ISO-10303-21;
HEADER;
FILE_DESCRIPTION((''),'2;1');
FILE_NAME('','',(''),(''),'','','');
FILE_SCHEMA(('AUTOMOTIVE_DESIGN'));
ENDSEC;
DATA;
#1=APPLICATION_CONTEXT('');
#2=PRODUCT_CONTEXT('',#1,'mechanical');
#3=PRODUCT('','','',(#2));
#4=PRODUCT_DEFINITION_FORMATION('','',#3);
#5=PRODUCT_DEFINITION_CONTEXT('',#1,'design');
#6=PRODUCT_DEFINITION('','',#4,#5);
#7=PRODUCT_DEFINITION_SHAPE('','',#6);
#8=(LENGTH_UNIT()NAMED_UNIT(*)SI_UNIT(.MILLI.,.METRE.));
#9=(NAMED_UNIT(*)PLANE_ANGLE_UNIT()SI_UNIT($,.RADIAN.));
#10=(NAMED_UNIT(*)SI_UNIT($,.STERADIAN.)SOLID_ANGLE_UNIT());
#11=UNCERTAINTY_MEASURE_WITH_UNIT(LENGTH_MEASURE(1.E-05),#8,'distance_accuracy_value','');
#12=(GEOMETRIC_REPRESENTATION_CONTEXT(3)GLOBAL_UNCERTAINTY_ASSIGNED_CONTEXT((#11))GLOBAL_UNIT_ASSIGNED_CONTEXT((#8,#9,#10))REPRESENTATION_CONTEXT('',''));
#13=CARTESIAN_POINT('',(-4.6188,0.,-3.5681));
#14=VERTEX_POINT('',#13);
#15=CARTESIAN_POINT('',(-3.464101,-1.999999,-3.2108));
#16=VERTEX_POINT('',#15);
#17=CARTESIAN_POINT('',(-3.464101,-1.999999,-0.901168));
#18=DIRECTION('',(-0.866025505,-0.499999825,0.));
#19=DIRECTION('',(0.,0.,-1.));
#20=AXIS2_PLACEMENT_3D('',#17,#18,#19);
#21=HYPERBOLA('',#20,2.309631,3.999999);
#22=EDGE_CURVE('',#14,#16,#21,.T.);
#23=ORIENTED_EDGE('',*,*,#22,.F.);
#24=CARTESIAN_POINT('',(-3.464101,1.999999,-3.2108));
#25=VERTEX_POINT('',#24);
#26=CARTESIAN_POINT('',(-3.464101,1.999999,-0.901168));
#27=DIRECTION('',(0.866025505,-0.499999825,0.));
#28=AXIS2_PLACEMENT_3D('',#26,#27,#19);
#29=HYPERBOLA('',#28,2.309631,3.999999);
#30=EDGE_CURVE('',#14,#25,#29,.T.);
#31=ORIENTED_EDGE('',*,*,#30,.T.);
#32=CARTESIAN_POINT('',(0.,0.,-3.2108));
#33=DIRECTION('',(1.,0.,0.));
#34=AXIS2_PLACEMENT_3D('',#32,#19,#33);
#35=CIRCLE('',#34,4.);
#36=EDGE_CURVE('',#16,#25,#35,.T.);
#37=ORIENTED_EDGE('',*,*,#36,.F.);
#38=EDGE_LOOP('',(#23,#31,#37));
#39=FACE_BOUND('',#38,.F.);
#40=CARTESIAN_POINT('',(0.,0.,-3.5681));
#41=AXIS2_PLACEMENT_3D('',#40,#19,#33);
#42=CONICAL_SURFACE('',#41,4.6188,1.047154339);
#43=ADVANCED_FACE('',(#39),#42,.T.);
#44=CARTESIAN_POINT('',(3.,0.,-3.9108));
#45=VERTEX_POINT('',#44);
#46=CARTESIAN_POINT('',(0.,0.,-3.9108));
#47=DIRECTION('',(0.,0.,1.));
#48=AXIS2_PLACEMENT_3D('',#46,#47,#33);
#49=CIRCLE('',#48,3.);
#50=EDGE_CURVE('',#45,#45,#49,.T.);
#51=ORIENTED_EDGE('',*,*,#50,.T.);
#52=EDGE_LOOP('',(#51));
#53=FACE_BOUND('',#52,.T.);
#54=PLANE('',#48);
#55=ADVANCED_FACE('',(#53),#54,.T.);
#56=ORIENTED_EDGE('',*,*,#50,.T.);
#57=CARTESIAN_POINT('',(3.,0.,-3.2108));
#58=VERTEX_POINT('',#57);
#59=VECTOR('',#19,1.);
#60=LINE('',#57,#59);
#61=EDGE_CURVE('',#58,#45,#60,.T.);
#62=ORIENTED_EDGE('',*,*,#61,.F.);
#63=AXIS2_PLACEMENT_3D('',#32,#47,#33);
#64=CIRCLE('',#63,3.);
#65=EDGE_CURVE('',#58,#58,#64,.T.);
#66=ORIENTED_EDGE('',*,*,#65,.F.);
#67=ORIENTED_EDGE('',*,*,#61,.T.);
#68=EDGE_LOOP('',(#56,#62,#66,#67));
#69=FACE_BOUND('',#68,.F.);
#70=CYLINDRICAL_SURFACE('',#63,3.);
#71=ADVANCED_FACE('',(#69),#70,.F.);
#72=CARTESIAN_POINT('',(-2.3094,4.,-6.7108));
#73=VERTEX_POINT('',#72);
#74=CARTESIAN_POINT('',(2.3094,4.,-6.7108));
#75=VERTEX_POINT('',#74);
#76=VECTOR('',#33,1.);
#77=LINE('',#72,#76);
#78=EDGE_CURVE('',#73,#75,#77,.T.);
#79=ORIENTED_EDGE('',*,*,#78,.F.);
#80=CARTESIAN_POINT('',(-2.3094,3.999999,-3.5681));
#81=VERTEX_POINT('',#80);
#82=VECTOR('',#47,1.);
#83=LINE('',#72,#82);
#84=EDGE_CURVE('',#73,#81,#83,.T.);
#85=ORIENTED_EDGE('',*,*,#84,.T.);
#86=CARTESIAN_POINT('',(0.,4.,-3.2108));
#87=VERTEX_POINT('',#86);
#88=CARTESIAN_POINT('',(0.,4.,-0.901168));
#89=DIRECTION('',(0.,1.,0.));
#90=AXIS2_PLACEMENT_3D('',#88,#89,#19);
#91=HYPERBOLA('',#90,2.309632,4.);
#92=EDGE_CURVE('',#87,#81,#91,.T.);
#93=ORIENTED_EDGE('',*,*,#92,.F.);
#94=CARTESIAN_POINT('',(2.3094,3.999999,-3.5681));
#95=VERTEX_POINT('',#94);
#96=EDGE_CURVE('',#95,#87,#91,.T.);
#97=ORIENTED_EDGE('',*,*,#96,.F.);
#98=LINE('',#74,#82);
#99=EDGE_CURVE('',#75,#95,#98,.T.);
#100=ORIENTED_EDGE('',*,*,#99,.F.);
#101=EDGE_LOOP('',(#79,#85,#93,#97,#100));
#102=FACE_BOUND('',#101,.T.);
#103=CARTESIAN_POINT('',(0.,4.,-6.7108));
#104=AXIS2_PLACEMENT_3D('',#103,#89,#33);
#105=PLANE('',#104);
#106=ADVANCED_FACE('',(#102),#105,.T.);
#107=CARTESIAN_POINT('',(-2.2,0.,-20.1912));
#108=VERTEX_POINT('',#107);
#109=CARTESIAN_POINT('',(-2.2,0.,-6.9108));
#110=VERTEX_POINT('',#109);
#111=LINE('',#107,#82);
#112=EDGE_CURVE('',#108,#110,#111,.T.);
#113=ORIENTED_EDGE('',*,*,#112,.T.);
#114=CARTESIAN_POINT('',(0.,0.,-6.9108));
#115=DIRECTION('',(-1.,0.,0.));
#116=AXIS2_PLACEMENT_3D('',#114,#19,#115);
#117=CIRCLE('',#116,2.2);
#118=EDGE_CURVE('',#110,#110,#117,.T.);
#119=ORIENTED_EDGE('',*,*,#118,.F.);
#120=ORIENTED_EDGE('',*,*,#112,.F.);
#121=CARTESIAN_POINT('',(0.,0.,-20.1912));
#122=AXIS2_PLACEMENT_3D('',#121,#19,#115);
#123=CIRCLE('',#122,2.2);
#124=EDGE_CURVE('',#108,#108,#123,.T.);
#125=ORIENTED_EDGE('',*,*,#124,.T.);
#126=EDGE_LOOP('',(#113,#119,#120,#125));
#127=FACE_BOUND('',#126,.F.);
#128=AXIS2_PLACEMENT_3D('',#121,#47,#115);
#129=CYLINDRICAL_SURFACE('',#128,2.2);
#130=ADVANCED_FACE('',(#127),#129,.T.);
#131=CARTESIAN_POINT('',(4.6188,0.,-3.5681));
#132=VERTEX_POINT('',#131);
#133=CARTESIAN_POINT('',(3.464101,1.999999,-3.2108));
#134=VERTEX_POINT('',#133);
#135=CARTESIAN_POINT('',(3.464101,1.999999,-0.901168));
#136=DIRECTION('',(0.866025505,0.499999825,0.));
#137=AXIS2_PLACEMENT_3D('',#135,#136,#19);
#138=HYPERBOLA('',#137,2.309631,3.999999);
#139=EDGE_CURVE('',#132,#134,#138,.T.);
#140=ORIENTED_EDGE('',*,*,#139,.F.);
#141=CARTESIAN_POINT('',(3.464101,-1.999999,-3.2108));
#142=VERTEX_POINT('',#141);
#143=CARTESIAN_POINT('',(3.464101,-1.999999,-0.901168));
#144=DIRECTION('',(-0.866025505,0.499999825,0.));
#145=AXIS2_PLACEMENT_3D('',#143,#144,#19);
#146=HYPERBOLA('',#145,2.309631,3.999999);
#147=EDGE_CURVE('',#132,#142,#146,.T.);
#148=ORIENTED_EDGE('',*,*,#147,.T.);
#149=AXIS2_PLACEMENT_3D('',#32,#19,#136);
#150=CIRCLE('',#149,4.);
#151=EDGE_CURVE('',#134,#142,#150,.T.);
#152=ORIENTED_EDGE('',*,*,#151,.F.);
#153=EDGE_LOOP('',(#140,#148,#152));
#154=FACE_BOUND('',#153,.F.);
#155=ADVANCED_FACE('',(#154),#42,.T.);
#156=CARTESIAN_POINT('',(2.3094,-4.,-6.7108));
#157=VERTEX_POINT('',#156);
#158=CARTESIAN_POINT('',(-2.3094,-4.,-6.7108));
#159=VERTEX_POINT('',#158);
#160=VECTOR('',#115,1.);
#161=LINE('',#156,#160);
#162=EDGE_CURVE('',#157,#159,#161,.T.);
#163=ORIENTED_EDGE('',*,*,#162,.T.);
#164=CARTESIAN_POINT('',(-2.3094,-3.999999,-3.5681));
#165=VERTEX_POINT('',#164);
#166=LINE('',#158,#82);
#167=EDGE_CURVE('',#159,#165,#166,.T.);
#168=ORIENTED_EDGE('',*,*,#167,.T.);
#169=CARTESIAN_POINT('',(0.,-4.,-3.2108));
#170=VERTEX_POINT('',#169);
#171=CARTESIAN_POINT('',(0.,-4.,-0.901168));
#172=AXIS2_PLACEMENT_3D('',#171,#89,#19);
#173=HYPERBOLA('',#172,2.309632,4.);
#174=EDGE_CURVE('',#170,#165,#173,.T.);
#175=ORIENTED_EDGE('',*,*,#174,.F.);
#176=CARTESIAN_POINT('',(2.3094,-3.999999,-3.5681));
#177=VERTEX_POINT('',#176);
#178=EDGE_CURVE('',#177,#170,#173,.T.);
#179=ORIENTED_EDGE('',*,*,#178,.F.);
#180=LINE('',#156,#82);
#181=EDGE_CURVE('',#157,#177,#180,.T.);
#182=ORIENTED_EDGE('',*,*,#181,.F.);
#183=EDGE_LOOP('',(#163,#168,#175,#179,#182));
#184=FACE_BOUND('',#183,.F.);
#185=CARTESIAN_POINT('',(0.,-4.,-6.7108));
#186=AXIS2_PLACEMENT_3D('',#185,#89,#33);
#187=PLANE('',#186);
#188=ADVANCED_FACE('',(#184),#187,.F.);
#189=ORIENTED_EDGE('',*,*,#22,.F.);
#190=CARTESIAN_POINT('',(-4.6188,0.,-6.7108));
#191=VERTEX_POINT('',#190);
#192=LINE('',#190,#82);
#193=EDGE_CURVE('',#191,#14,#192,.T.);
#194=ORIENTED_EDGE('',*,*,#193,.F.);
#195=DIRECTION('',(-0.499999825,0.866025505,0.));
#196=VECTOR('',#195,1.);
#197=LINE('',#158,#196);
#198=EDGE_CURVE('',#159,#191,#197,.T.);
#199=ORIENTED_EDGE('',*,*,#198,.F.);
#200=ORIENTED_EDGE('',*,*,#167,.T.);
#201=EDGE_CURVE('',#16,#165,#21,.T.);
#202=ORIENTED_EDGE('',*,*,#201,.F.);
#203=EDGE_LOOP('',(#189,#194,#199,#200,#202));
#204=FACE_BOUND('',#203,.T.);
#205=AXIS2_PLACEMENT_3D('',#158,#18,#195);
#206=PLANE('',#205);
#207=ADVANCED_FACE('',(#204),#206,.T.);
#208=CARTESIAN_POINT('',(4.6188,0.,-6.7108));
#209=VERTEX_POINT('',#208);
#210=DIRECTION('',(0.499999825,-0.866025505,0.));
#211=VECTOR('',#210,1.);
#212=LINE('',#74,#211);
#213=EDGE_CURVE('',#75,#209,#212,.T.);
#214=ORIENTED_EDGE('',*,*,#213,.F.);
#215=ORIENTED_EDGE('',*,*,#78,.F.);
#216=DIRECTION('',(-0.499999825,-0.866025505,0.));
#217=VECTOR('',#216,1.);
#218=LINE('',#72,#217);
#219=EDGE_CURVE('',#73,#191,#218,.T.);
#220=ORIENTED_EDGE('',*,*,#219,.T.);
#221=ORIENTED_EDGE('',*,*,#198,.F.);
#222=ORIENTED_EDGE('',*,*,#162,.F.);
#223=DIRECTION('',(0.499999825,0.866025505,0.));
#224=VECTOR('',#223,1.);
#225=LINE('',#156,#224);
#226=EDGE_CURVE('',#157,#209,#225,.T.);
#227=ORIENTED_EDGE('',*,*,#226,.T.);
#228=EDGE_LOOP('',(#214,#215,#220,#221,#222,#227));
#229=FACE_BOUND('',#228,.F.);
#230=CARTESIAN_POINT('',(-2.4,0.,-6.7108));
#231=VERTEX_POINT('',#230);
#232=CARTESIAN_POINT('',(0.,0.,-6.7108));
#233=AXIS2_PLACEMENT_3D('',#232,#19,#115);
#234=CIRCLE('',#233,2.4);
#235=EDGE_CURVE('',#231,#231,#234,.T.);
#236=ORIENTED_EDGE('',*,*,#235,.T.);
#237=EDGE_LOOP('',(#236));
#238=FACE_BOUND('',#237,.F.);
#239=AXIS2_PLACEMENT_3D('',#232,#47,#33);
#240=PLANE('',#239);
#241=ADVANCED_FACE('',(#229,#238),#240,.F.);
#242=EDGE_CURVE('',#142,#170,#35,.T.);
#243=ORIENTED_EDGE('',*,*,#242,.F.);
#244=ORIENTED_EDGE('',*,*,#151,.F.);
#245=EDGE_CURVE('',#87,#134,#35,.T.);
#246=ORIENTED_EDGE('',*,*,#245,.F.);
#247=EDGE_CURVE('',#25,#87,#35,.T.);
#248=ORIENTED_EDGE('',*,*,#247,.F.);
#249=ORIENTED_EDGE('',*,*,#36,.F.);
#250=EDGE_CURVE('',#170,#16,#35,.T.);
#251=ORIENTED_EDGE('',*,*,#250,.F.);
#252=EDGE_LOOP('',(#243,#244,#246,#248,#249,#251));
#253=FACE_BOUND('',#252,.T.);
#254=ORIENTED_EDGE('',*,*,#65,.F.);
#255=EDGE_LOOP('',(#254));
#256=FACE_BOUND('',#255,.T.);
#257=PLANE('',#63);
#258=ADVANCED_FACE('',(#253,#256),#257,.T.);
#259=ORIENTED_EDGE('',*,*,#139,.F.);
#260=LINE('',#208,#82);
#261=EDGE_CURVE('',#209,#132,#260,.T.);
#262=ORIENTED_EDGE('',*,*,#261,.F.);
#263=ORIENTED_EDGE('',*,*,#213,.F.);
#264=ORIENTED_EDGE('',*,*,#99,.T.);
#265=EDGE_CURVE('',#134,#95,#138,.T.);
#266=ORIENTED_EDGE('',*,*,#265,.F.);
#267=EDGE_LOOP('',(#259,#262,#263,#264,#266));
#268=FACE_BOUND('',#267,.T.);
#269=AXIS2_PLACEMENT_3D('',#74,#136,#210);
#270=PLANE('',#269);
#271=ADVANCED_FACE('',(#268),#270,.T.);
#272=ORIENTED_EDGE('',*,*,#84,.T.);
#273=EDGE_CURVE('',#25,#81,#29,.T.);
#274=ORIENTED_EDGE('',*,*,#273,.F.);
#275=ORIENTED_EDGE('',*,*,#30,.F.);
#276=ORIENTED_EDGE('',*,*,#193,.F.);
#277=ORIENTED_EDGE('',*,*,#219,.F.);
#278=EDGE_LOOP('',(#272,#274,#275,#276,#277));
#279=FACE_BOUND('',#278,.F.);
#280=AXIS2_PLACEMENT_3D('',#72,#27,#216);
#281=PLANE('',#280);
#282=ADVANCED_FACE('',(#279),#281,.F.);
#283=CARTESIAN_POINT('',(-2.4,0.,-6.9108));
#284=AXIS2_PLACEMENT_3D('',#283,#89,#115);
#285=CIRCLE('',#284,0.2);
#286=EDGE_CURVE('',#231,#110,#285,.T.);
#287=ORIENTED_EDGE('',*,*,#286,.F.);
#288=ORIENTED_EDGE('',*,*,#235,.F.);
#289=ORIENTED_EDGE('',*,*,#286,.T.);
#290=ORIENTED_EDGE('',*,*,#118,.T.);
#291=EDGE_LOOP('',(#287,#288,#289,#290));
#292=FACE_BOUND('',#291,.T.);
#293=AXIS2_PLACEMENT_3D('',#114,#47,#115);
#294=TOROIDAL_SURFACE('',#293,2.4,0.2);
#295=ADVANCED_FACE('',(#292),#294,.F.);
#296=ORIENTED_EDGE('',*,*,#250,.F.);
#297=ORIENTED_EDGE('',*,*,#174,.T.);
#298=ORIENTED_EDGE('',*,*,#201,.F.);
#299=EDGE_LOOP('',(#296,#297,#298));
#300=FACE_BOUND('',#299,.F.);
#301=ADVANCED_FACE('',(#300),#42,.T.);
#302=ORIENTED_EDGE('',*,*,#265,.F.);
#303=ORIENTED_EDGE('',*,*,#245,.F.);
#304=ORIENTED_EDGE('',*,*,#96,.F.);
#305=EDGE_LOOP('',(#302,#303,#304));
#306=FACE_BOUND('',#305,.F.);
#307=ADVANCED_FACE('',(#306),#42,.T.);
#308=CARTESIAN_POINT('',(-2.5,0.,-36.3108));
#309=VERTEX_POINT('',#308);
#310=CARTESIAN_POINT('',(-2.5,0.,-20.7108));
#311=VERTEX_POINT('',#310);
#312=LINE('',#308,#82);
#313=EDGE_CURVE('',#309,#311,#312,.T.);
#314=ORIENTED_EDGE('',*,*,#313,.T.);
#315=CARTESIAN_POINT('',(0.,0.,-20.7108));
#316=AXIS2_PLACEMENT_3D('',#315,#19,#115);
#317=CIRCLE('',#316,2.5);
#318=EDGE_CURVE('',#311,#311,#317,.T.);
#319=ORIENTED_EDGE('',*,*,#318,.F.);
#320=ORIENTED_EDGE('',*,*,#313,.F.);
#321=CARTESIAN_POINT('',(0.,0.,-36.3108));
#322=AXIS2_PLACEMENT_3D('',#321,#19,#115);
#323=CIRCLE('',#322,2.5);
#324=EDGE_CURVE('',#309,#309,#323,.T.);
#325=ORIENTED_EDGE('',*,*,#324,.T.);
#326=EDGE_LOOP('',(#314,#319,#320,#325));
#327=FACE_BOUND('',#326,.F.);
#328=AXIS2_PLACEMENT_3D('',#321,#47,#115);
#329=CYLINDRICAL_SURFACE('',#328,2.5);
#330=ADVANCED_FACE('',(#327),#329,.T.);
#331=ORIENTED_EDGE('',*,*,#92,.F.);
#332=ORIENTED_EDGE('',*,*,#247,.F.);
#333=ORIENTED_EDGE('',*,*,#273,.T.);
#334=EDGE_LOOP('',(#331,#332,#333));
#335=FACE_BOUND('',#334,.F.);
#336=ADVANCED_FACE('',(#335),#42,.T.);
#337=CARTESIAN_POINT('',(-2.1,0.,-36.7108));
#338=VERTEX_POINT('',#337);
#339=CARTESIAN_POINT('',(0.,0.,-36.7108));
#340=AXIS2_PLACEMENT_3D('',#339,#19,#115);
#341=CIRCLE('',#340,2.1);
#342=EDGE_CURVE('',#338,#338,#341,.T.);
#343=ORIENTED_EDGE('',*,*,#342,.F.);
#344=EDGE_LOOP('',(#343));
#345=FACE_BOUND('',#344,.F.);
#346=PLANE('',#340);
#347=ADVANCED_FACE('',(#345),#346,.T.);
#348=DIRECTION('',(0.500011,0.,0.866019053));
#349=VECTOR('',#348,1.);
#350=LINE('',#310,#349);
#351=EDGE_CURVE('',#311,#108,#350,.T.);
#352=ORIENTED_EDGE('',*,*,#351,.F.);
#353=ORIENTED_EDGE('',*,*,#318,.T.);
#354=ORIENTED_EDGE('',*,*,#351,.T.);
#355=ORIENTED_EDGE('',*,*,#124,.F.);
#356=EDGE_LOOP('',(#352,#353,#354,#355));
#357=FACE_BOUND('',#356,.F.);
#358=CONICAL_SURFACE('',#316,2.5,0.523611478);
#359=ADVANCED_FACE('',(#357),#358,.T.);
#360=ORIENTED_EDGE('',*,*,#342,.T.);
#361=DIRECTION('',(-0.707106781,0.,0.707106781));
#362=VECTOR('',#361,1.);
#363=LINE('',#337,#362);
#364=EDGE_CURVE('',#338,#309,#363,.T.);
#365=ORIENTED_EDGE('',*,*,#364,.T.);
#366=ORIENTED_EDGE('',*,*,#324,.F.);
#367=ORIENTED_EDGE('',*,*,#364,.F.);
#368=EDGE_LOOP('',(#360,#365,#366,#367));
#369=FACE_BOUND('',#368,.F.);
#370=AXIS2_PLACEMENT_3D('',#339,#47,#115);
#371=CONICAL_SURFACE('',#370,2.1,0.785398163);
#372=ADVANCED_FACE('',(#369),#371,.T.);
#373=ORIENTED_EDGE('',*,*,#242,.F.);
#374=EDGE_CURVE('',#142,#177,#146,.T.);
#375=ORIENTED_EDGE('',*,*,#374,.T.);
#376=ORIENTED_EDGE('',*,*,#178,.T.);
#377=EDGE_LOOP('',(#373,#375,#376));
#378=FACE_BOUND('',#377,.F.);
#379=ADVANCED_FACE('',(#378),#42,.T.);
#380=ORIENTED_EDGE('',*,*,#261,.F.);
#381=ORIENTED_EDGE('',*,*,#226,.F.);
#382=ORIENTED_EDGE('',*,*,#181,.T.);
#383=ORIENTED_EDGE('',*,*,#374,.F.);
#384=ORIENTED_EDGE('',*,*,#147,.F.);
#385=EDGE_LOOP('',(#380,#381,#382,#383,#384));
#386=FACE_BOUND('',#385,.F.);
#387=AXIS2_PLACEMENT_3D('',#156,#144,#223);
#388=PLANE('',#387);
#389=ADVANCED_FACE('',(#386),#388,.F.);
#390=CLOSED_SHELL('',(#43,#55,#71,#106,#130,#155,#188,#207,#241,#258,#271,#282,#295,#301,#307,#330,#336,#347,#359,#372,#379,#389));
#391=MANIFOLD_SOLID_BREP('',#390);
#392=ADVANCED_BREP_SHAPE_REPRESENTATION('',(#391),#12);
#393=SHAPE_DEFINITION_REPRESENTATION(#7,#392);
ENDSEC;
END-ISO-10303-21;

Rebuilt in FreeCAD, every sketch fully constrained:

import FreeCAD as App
import Part
import Sketcher

V = App.Vector
Q = App.Units.Quantity


def edges_at(feature, points):
    """Names of the edges that pass closest to the given points."""
    edges = feature.Shape.Edges
    near = lambda p: min(range(len(edges)), key=lambda i: edges[i].distToShape(Part.Vertex(*p))[0])
    return sorted({f"Edge{near(p) + 1}" for p in points})

doc = App.newDocument("Part")
body = doc.addObject("PartDesign::Body", "Body")

sketch1 = body.newObject("Sketcher::SketchObject", "Sketch")
sketch1.AttachmentSupport = (doc.getObject("XZ_Plane"), [""])
sketch1.MapMode = "FlatFace"
sketch1.addGeometry([
    Part.LineSegment(V(-2.2, -6.7, 0), V(0, -6.7, 0)),
    Part.LineSegment(V(0, -6.7, 0), V(0, -36.7, 0)),
    Part.LineSegment(V(0, -36.7, 0), V(-2.1, -36.7, 0)),
    Part.LineSegment(V(-2.1, -36.7, 0), V(-2.5, -36.3, 0)),
    Part.LineSegment(V(-2.5, -36.3, 0), V(-2.5, -20.7, 0)),
    Part.LineSegment(V(-2.5, -20.7, 0), V(-2.2, -20.2, 0)),
    Part.LineSegment(V(-2.2, -20.2, 0), V(-2.2, -6.7, 0)),
], False)
sketch1.addConstraint([
    Sketcher.Constraint("Coincident", 0, 2, 1, 1),
    Sketcher.Constraint("Coincident", 1, 2, 2, 1),
    Sketcher.Constraint("Coincident", 2, 2, 3, 1),
    Sketcher.Constraint("Coincident", 3, 2, 4, 1),
    Sketcher.Constraint("Coincident", 4, 2, 5, 1),
    Sketcher.Constraint("Coincident", 5, 2, 6, 1),
    Sketcher.Constraint("Coincident", 6, 2, 0, 1),
    Sketcher.Constraint("Horizontal", 0),
    Sketcher.Constraint("Vertical", 1),
    Sketcher.Constraint("Horizontal", 2),
    Sketcher.Constraint("Vertical", 4),
    Sketcher.Constraint("Vertical", 6),
    Sketcher.Constraint("PointOnObject", 0, 2, -2),
    Sketcher.Constraint("DistanceY", 1, 2, 1, 1, 30.0),
    Sketcher.Constraint("DistanceY", 2, 2, 4, 2, 16.0),
    Sketcher.Constraint("Angle", 3, Q("135 deg")),
    Sketcher.Constraint("Angle", 5, Q("59.9993 deg")),
    Sketcher.Constraint("DistanceX", 0, 1, 0, 2, 2.2),
    Sketcher.Constraint("DistanceX", 2, 2, 2, 1, 2.1),
    Sketcher.Constraint("DistanceY", 4, 1, 4, 2, 15.6),
    Sketcher.Constraint("DistanceY", 0, 2, -1, 1, 6.7108),
])
revolution = body.newObject("PartDesign::Revolution", "Revolution")
revolution.Profile = sketch1
revolution.ReferenceAxis = (sketch1, ["V_Axis"])
revolution.Angle = 360

sketch2 = body.newObject("Sketcher::SketchObject", "Sketch001")
sketch2.AttachmentSupport = (doc.getObject("XY_Plane"), [""])
sketch2.MapMode = "FlatFace"
sketch2.AttachmentOffset = App.Placement(V(0, 0, -6.7108), App.Rotation())
sketch2.addGeometry([
    Part.LineSegment(V(2.3, 4, 0), V(-2.3, 4, 0)),
    Part.LineSegment(V(-2.3, 4, 0), V(-4.6, 0, 0)),
    Part.LineSegment(V(-4.6, 0, 0), V(-2.3, -4, 0)),
    Part.LineSegment(V(-2.3, -4, 0), V(2.3, -4, 0)),
    Part.LineSegment(V(2.3, -4, 0), V(4.6, 0, 0)),
    Part.LineSegment(V(4.6, 0, 0), V(2.3, 4, 0)),
], False)
sketch2.addConstraint([
    Sketcher.Constraint("Coincident", 0, 2, 1, 1),
    Sketcher.Constraint("Coincident", 1, 2, 2, 1),
    Sketcher.Constraint("Coincident", 2, 2, 3, 1),
    Sketcher.Constraint("Coincident", 3, 2, 4, 1),
    Sketcher.Constraint("Coincident", 4, 2, 5, 1),
    Sketcher.Constraint("Coincident", 5, 2, 0, 1),
    Sketcher.Constraint("Horizontal", 0),
    Sketcher.Constraint("Horizontal", 3),
    Sketcher.Constraint("Symmetric", 0, 2, 3, 2, -1, 1),
    Sketcher.Constraint("Symmetric", 1, 2, 4, 2, -1, 1),
    Sketcher.Constraint("PointOnObject", 1, 2, -1),
    Sketcher.Constraint("Parallel", 2, 5),
    Sketcher.Constraint("Vertical", 0, 2, 2, 2),
    Sketcher.Constraint("Angle", 2, Q("-60 deg")),
    Sketcher.Constraint("DistanceY", 2, 2, 0, 2, 8.0),
    Sketcher.Constraint("DistanceX", 0, 2, 0, 1, 4.6188),
])
pad1 = body.newObject("PartDesign::Pad", "Pad")
pad1.Profile = sketch2
pad1.Length = 3.5

sketch3 = body.newObject("Sketcher::SketchObject", "Sketch002")
sketch3.AttachmentSupport = (doc.getObject("XZ_Plane"), [""])
sketch3.MapMode = "FlatFace"
sketch3.addGeometry([
    Part.LineSegment(V(4.62, -3.57, 0), V(4, -3.21, 0)),
    Part.LineSegment(V(4, -3.21, 0), V(4.62, -3.21, 0)),
    Part.LineSegment(V(4.62, -3.21, 0), V(4.62, -3.57, 0)),
], False)
sketch3.addConstraint([
    Sketcher.Constraint("Coincident", 0, 2, 1, 1),
    Sketcher.Constraint("Coincident", 1, 2, 2, 1),
    Sketcher.Constraint("Coincident", 2, 2, 0, 1),
    Sketcher.Constraint("Horizontal", 1),
    Sketcher.Constraint("Vertical", 2),
    Sketcher.Constraint("DistanceX", -1, 1, 0, 2, 4.0),
    Sketcher.Constraint("DistanceX", 1, 1, 1, 2, 0.6188),
    Sketcher.Constraint("DistanceY", 2, 2, 2, 1, 0.3573),
    Sketcher.Constraint("DistanceY", 2, 2, -1, 1, 3.568),
])
groove = body.newObject("PartDesign::Groove", "Groove")
groove.Profile = sketch3
groove.ReferenceAxis = (sketch3, ["V_Axis"])
groove.Angle = 360

sketch4 = body.newObject("Sketcher::SketchObject", "Sketch003")
sketch4.AttachmentSupport = (doc.getObject("XY_Plane"), [""])
sketch4.MapMode = "FlatFace"
sketch4.AttachmentOffset = App.Placement(V(0, 0, -3.2108), App.Rotation())
sketch4.addGeometry(Part.Circle(V(0, 0, 0), V(0, 0, 1), 3), False)
sketch4.addConstraint([
    Sketcher.Constraint("Coincident", 0, 3, -1, 1),
    Sketcher.Constraint("Diameter", 0, 6.0),
])
pocket1 = body.newObject("PartDesign::Pocket", "Pocket")
pocket1.Profile = sketch4
pocket1.Length = 0.7
doc.recompute()

fillet = body.newObject("PartDesign::Fillet", "Fillet")
fillet.Base = (pocket1, edges_at(pocket1, [(2.2, 0, -6.711)]))
fillet.Radius = 0.2

doc.recompute()
